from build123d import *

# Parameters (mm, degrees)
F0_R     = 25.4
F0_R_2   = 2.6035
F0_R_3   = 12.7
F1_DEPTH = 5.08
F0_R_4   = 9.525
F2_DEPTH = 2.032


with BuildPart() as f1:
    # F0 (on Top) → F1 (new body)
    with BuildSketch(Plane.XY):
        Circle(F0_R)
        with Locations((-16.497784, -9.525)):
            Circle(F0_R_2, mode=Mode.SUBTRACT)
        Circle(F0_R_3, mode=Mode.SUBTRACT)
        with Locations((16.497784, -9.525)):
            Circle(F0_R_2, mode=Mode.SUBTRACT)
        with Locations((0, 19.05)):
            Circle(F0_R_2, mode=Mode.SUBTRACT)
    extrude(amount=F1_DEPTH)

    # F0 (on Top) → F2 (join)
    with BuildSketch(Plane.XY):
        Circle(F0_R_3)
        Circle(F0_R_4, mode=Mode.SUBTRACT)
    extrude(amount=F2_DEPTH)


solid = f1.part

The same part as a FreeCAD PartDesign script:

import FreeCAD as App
import Part
import Sketcher
from FreeCAD import Vector
Q = App.Units.Quantity

doc = App.newDocument("Part")
params = doc.addObject("Spreadsheet::Sheet", "Params")
for row, (alias, value) in enumerate([
    ("sketch1_diameter", "2 in"),
    ("sketch1_diameter2", "1 in"),
    ("sketch1_diameter3", "0.205 in"),
    ("pad1_length", "0.2 in"),
    ("sketch2_diameter", "1 in"),
    ("sketch2_diameter2", "0.75 in"),
    ("pad2_length", "0.08 in"),
], start=1):
    params.set(f"A{row}", alias)
    params.set(f"B{row}", "=" + value)
    params.setAlias(f"B{row}", alias)

body = doc.addObject("PartDesign::Body", "Body")

# Sketch on XY plane
sketch1 = body.newObject("Sketcher::SketchObject", "Sketch")
sketch1.AttachmentSupport = (doc.getObject("XY_Plane"), [""])
sketch1.MapMode = "FlatFace"
sketch1.addGeometry(Part.Circle(Vector(0, 0, 0), Vector(0, 0, 1), 25.4), False)
sketch1.addGeometry(Part.Circle(Vector(-16.497784, -9.525, 0), Vector(0, 0, 1), 2.6035), False)
sketch1.addGeometry(Part.Circle(Vector(16.497784, -9.525, 0), Vector(0, 0, 1), 2.6035), False)
sketch1.addGeometry(Part.Circle(Vector(0, 0, 0), Vector(0, 0, 1), 12.7), False)
sketch1.addGeometry(Part.Circle(Vector(0, 19.05, 0), Vector(0, 0, 1), 2.6035), False)
sketch1.addConstraint(Sketcher.Constraint("Coincident", 0, 3, -1, 1))
sketch1.addConstraint(Sketcher.Constraint("Coincident", 3, 3, -1, 1))
sketch1.addConstraint(Sketcher.Constraint("Equal", 1, 2))
sketch1.addConstraint(Sketcher.Constraint("Equal", 2, 4))
sketch1.addConstraint(Sketcher.Constraint("Symmetric", 1, 3, 2, 3, -2))
sketch1.addConstraint(Sketcher.Constraint("PointOnObject", 4, 3, -2))
sketch1.addConstraint(Sketcher.Constraint("Diameter", 0, Q("2 in")))
sketch1.addConstraint(Sketcher.Constraint("Diameter", 3, Q("1 in")))
sketch1.addConstraint(Sketcher.Constraint("Diameter", 1, Q("0.205 in")))
sketch1.addConstraint(Sketcher.Constraint("DistanceY", -1, 1, 4, 3, Q("0.75 in")))
sketch1.addConstraint(Sketcher.Constraint("DistanceY", 1, 3, -1, 1, Q("0.375 in")))
sketch1.addConstraint(Sketcher.Constraint("DistanceX", 1, 3, -1, 1, 16.497784))
sketch1.setExpression("Constraints[6]", "Params.sketch1_diameter")
sketch1.setExpression("Constraints[7]", "Params.sketch1_diameter2")
sketch1.setExpression("Constraints[8]", "Params.sketch1_diameter3")
pad1 = body.newObject("PartDesign::Pad", "Pad")
pad1.Profile = sketch1
pad1.setExpression("Length", "Params.pad1_length")

# Sketch on XY plane
sketch2 = body.newObject("Sketcher::SketchObject", "Sketch001")
sketch2.AttachmentSupport = (doc.getObject("XY_Plane"), [""])
sketch2.MapMode = "FlatFace"
sketch2.addGeometry(Part.Circle(Vector(0, 0, 0), Vector(0, 0, 1), 12.7), False)
sketch2.addGeometry(Part.Circle(Vector(0, 0, 0), Vector(0, 0, 1), 9.525), False)
sketch2.addConstraint(Sketcher.Constraint("Coincident", 0, 3, -1, 1))
sketch2.addConstraint(Sketcher.Constraint("Coincident", 1, 3, -1, 1))
sketch2.addConstraint(Sketcher.Constraint("Diameter", 0, Q("1 in")))
sketch2.addConstraint(Sketcher.Constraint("Diameter", 1, Q("0.75 in")))
sketch2.setExpression("Constraints[2]", "Params.sketch2_diameter")
sketch2.setExpression("Constraints[3]", "Params.sketch2_diameter2")
pad2 = body.newObject("PartDesign::Pad", "Pad001")
pad2.Profile = sketch2
pad2.setExpression("Length", "Params.pad2_length")

doc.recompute()
